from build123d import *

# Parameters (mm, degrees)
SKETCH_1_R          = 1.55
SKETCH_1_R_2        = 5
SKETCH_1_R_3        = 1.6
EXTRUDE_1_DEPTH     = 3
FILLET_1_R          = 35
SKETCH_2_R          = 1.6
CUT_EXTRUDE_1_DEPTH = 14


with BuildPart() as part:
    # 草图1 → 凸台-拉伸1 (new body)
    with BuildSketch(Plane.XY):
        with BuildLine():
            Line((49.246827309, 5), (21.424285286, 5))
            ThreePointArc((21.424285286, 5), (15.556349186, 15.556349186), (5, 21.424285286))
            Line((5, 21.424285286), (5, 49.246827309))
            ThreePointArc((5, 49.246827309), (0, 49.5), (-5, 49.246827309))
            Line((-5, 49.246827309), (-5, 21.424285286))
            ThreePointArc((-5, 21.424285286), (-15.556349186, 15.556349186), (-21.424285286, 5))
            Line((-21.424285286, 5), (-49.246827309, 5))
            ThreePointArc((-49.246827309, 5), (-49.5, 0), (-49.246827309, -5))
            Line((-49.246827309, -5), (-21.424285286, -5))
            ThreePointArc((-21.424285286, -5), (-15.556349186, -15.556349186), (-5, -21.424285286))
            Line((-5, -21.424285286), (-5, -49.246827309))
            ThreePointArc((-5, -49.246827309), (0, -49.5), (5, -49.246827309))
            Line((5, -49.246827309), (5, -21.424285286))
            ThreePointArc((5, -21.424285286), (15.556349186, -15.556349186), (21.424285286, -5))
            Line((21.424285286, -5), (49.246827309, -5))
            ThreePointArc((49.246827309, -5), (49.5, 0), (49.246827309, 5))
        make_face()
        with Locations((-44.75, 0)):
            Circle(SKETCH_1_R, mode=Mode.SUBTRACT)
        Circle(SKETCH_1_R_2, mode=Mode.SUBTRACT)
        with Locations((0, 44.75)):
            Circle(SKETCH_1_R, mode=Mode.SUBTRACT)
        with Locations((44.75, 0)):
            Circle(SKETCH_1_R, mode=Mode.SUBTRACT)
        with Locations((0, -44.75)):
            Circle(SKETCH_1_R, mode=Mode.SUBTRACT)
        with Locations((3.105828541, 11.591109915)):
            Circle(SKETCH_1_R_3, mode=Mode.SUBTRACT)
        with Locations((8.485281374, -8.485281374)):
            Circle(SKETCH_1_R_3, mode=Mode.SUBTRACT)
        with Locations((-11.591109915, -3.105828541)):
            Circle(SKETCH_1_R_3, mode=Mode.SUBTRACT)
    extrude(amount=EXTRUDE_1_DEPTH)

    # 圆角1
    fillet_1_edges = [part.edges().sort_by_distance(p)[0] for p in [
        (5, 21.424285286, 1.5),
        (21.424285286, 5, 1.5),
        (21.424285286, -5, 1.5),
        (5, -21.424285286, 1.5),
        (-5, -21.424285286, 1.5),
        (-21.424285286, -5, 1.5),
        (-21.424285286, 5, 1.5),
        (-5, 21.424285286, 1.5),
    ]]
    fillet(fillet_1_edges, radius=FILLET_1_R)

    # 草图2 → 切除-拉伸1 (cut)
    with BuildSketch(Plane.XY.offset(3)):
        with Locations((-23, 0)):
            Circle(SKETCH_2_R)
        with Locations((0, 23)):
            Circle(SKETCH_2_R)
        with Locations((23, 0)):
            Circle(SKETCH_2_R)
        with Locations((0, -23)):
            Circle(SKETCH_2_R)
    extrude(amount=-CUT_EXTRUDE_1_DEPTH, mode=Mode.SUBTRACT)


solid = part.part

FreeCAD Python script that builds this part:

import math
import FreeCAD as App
import Part
import Sketcher
from FreeCAD import Vector


def edges_at(feature, points):
    """Names of the edges that pass closest to the given points."""
    edges = feature.Shape.Edges
    near = lambda p: min(range(len(edges)), key=lambda i: edges[i].distToShape(Part.Vertex(*p))[0])
    return sorted({f"Edge{near(p) + 1}" for p in points})

doc = App.newDocument("Part")
params = doc.addObject("Spreadsheet::Sheet", "Params")
for row, (alias, value) in enumerate([
    ("sketch1_diameter", "10 mm"),
    ("sketch1_radius", "22 mm"),
    ("sketch1_diameter2", "3.2 mm"),
    ("sketch1_diameter3", "3.1 mm"),
    ("sketch1_radius2", "49.5 mm"),
    ("pad1_length", "3 mm"),
    ("fillet_radius", "35 mm"),
    ("sketch2_diameter", "3.2 mm"),
    ("pocket1_length", "14 mm"),
], start=1):
    params.set(f"A{row}", alias)
    params.set(f"B{row}", "=" + value)
    params.setAlias(f"B{row}", alias)

body = doc.addObject("PartDesign::Body", "Body")

# Sketch on XY plane
sketch1 = body.newObject("Sketcher::SketchObject", "Sketch")
sketch1.AttachmentSupport = (doc.getObject("XY_Plane"), [""])
sketch1.MapMode = "FlatFace"
sketch1.addGeometry([
    Part.LineSegment(Vector(49.2, 5, 0), Vector(21.4, 5, 0)),  # 0
    Part.ArcOfCircle(Part.Circle(Vector(0, 0, 0), Vector(0, 0, 1), 22), math.radians(13), math.radians(77)),  # 1
    Part.LineSegment(Vector(5, 21.4, 0), Vector(5, 49.2, 0)),  # 2
    Part.ArcOfCircle(Part.Circle(Vector(0, 0, 0), Vector(0, 0, 1), 49.5), math.radians(84.2), math.radians(95.8)),  # 3
    Part.LineSegment(Vector(-5, 49.2, 0), Vector(-5, 21.4, 0)),  # 4
    Part.ArcOfCircle(Part.Circle(Vector(0, 0, 0), Vector(0, 0, 1), 22), math.radians(103), math.radians(167)),  # 5
    Part.LineSegment(Vector(-21.4, 5, 0), Vector(-49.2, 5, 0)),  # 6
    Part.ArcOfCircle(Part.Circle(Vector(0, 0, 0), Vector(0, 0, 1), 49.5), math.radians(174.2), math.radians(185.8)),  # 7
    Part.LineSegment(Vector(-49.2, -5, 0), Vector(-21.4, -5, 0)),  # 8
    Part.ArcOfCircle(Part.Circle(Vector(0, 0, 0), Vector(0, 0, 1), 22), math.radians(-167), math.radians(-103)),  # 9
    Part.LineSegment(Vector(-5, -21.4, 0), Vector(-5, -49.2, 0)),  # 10
    Part.ArcOfCircle(Part.Circle(Vector(0, 0, 0), Vector(0, 0, 1), 49.5), math.radians(-95.8), math.radians(-84.2)),  # 11
    Part.LineSegment(Vector(5, -49.2, 0), Vector(5, -21.4, 0)),  # 12
    Part.ArcOfCircle(Part.Circle(Vector(0, 0, 0), Vector(0, 0, 1), 22), math.radians(-77), math.radians(-13)),  # 13
    Part.LineSegment(Vector(21.4, -5, 0), Vector(49.2, -5, 0)),  # 14
    Part.ArcOfCircle(Part.Circle(Vector(0, 0, 0), Vector(0, 0, 1), 49.5), math.radians(-5.8), math.radians(5.8)),  # 15
    Part.Circle(Vector(-11.6, -3.1, 0), Vector(0, 0, 1), 1.6),  # 16
    Part.Circle(Vector(0, -44.8, 0), Vector(0, 0, 1), 1.6),  # 17
    Part.Circle(Vector(8.5, -8.5, 0), Vector(0, 0, 1), 1.6),  # 18
    Part.Circle(Vector(-44.8, 0, 0), Vector(0, 0, 1), 1.6),  # 19
    Part.Circle(Vector(0, 0, 0), Vector(0, 0, 1), 5),  # 20
    Part.Circle(Vector(3.1, 11.6, 0), Vector(0, 0, 1), 1.6),  # 21
    Part.Circle(Vector(44.8, 0, 0), Vector(0, 0, 1), 1.6),  # 22
    Part.Circle(Vector(0, 44.8, 0), Vector(0, 0, 1), 1.6),  # 23
], False)
sketch1.addConstraint([
    Sketcher.Constraint("Coincident", 0, 2, 1, 1),
    Sketcher.Constraint("Coincident", 1, 2, 2, 1),
    Sketcher.Constraint("Coincident", 2, 2, 3, 1),
    Sketcher.Constraint("Coincident", 3, 2, 4, 1),
    Sketcher.Constraint("Coincident", 4, 2, 5, 1),
    Sketcher.Constraint("Coincident", 5, 2, 6, 1),
    Sketcher.Constraint("Coincident", 6, 2, 7, 1),
    Sketcher.Constraint("Coincident", 7, 2, 8, 1),
    Sketcher.Constraint("Coincident", 8, 2, 9, 1),
    Sketcher.Constraint("Coincident", 9, 2, 10, 1),
    Sketcher.Constraint("Coincident", 10, 2, 11, 1),
    Sketcher.Constraint("Coincident", 11, 2, 12, 1),
    Sketcher.Constraint("Coincident", 12, 2, 13, 1),
    Sketcher.Constraint("Coincident", 13, 2, 14, 1),
    Sketcher.Constraint("Coincident", 14, 2, 15, 1),
    Sketcher.Constraint("Coincident", 15, 2, 0, 1),
    Sketcher.Constraint("Horizontal", 0),
    Sketcher.Constraint("Vertical", 2),
    Sketcher.Constraint("Vertical", 4),
    Sketcher.Constraint("Horizontal", 6),
    Sketcher.Constraint("Horizontal", 8),
    Sketcher.Constraint("Vertical", 10),
    Sketcher.Constraint("Vertical", 12),
    Sketcher.Constraint("Horizontal", 14),
    Sketcher.Constraint("Coincident", 1, 3, -1, 1),
    Sketcher.Constraint("Coincident", 3, 3, -1, 1),
    Sketcher.Constraint("Coincident", 5, 3, -1, 1),
    Sketcher.Constraint("Coincident", 7, 3, -1, 1),
    Sketcher.Constraint("Coincident", 9, 3, -1, 1),
    Sketcher.Constraint("Coincident", 11, 3, -1, 1),
    Sketcher.Constraint("Coincident", 13, 3, -1, 1),
    Sketcher.Constraint("Coincident", 15, 3, -1, 1),
    Sketcher.Constraint("Coincident", 20, 3, -1, 1),
    Sketcher.Constraint("Equal", 1, 5),
    Sketcher.Constraint("Equal", 3, 7),
    Sketcher.Constraint("Equal", 5, 9),
    Sketcher.Constraint("Equal", 7, 11),
    Sketcher.Constraint("Equal", 9, 13),
    Sketcher.Constraint("Equal", 11, 15),
    Sketcher.Constraint("Equal", 16, 18),
    Sketcher.Constraint("Equal", 17, 19),
    Sketcher.Constraint("Equal", 18, 21),
    Sketcher.Constraint("Equal", 19, 22),
    Sketcher.Constraint("Equal", 22, 23),
    Sketcher.Constraint("Symmetric", 19, 3, 22, 3, -1, 1),
    Sketcher.Constraint("Symmetric", 17, 3, 23, 3, -1, 1),
    Sketcher.Constraint("PointOnObject", 17, 3, -2),
    Sketcher.Constraint("PointOnObject", 19, 3, -1),
    Sketcher.Constraint("Horizontal", 2, 2, 3, 2),
    Sketcher.Constraint("Horizontal", 0, 2, 5, 2),
    Sketcher.Constraint("Horizontal", 10, 2, 11, 2),
    Sketcher.Constraint("Horizontal", 8, 2, 13, 2),
    Sketcher.Constraint("Vertical", 6, 2, 7, 2),
    Sketcher.Constraint("Vertical", 4, 2, 9, 2),
    Sketcher.Constraint("Equal", 14, 2),
    Sketcher.Constraint("Diameter", 20, 10.0),
    Sketcher.Constraint("Radius", 1, 22.0),
    Sketcher.Constraint("Diameter", 16, 3.2),
    Sketcher.Constraint("Diameter", 17, 3.1),
    Sketcher.Constraint("Radius", 3, 49.5),
    Sketcher.Constraint("DistanceY", -1, 1, 0, 2, 5.0),
    Sketcher.Constraint("DistanceY", 17, 3, -1, 1, 44.75),
    Sketcher.Constraint("DistanceX", 19, 3, -1, 1, 44.75),
    Sketcher.Constraint("DistanceY", 10, 2, 16, 3, 46.140999),
    Sketcher.Constraint("DistanceX", 16, 3, -1, 1, 11.59111),
    Sketcher.Constraint("DistanceX", -1, 1, 18, 3, 8.485281),
    Sketcher.Constraint("DistanceY", 18, 3, -1, 1, 8.485281),
    Sketcher.Constraint("DistanceX", -1, 1, 21, 3, 3.105829),
    Sketcher.Constraint("DistanceY", -1, 1, 21, 3, 11.59111),
])
sketch1.setExpression("Constraints[55]", "Params.sketch1_diameter")
sketch1.setExpression("Constraints[56]", "Params.sketch1_radius")
sketch1.setExpression("Constraints[57]", "Params.sketch1_diameter2")
sketch1.setExpression("Constraints[58]", "Params.sketch1_diameter3")
sketch1.setExpression("Constraints[59]", "Params.sketch1_radius2")
pad1 = body.newObject("PartDesign::Pad", "Pad")
pad1.Profile = sketch1
pad1.setExpression("Length", "Params.pad1_length")
doc.recompute()

fillet = body.newObject("PartDesign::Fillet", "Fillet")
fillet.Base = (pad1, edges_at(pad1, [
    (5, 21.424, 1.5),
    (21.424, 5, 1.5),
    (21.424, -5, 1.5),
    (5, -21.424, 1.5),
    (-5, -21.424, 1.5),
    (-21.424, -5, 1.5),
    (-21.424, 5, 1.5),
    (-5, 21.424, 1.5),
]))
fillet.setExpression("Radius", "Params.fillet_radius")

# Sketch on XY plane
sketch2 = body.newObject("Sketcher::SketchObject", "Sketch001")
sketch2.AttachmentSupport = (doc.getObject("XY_Plane"), [""])
sketch2.MapMode = "FlatFace"
sketch2.AttachmentOffset = App.Placement(Vector(0, 0, 3), App.Rotation())
sketch2.addGeometry([
    Part.Circle(Vector(-23, 0, 0), Vector(0, 0, 1), 1.6),
    Part.Circle(Vector(0, 23, 0), Vector(0, 0, 1), 1.6),
    Part.Circle(Vector(23, 0, 0), Vector(0, 0, 1), 1.6),
    Part.Circle(Vector(0, -23, 0), Vector(0, 0, 1), 1.6),
], False)
sketch2.addConstraint([
    Sketcher.Constraint("Equal", 0, 1),
    Sketcher.Constraint("Equal", 1, 2),
    Sketcher.Constraint("Equal", 2, 3),
    Sketcher.Constraint("Symmetric", 0, 3, 2, 3, -1, 1),
    Sketcher.Constraint("Symmetric", 1, 3, 3, 3, -1, 1),
    Sketcher.Constraint("PointOnObject", 0, 3, -1),
    Sketcher.Constraint("PointOnObject", 1, 3, -2),
    Sketcher.Constraint("Diameter", 0, 3.2),
    Sketcher.Constraint("DistanceX", 0, 3, -1, 1, 23.0),
    Sketcher.Constraint("DistanceY", -1, 1, 1, 3, 23.0),
])
sketch2.setExpression("Constraints[7]", "Params.sketch2_diameter")
pocket1 = body.newObject("PartDesign::Pocket", "Pocket")
pocket1.Profile = sketch2
pocket1.setExpression("Length", "Params.pocket1_length")

doc.recompute()
